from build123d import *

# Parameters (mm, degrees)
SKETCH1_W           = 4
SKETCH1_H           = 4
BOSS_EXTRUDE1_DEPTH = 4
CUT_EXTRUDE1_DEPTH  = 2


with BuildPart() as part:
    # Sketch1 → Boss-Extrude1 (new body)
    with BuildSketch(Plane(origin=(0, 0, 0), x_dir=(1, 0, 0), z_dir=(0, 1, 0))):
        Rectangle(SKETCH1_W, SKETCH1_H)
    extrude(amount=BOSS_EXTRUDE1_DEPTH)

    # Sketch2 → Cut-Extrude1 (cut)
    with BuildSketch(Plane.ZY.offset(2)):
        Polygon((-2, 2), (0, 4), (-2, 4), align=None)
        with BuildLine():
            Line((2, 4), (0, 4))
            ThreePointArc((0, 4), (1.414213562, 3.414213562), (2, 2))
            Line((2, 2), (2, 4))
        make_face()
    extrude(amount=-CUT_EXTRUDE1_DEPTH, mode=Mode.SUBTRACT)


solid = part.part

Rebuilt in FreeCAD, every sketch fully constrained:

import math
import FreeCAD as App
import Part
import Sketcher
from FreeCAD import Vector


def add_polygon(sketch, points):
    """Adds a closed chain of lines whose ends are joined by coincident constraints."""
    first, n = sketch.GeometryCount, len(points)
    for a, b in zip(points, points[1:] + points[:1]):
        sketch.addGeometry(Part.LineSegment(App.Vector(*a, 0), App.Vector(*b, 0)), False)
    for i in range(n):
        sketch.addConstraint(Sketcher.Constraint("Coincident", first + i, 2, first + (i + 1) % n, 1))

doc = App.newDocument("Part")
params = doc.addObject("Spreadsheet::Sheet", "Params")
for row, (alias, value) in enumerate([
    ("sketch1_width", "4 mm"),
    ("pad1_length", "4 mm"),
    ("sketch2_radius", "2 mm"),
    ("pocket1_length", "2 mm"),
], start=1):
    params.set(f"A{row}", alias)
    params.set(f"B{row}", "=" + value)
    params.setAlias(f"B{row}", alias)

body = doc.addObject("PartDesign::Body", "Body")

sketch1 = body.newObject("Sketcher::SketchObject", "Sketch")
sketch1.AttachmentSupport = (doc.getObject("XZ_Plane"), [""])
sketch1.MapMode = "FlatFace"
add_polygon(sketch1, [(-2, -2), (-2, 2), (2, 2), (2, -2)])
sketch1.addConstraint([
    Sketcher.Constraint("Vertical", 0),
    Sketcher.Constraint("Horizontal", 1),
    Sketcher.Constraint("Vertical", 2),
    Sketcher.Constraint("Horizontal", 3),
    Sketcher.Constraint("Symmetric", 0, 2, 2, 2, -1, 1),
    Sketcher.Constraint("Equal", 3, 0),
    Sketcher.Constraint("DistanceX", 1, 1, 1, 2, 4.0),
])
sketch1.setExpression("Constraints[10]", "Params.sketch1_width")
pad1 = body.newObject("PartDesign::Pad", "Pad")
pad1.Profile = sketch1
pad1.setExpression("Length", "Params.pad1_length")
pad1.Reversed = True

sketch2 = body.newObject("Sketcher::SketchObject", "Sketch001")
sketch2.AttachmentSupport = (doc.getObject("YZ_Plane"), [""])
sketch2.MapMode = "FlatFace"
sketch2.AttachmentOffset = App.Placement(Vector(0, 0, -2), App.Rotation())
add_polygon(sketch2, [(2, -2), (4, 0), (4, -2)])
sketch2.addGeometry(Part.LineSegment(Vector(4, 2, 0), Vector(4, 0, 0)), False)
sketch2.addGeometry(Part.ArcOfCircle(Part.Circle(Vector(2, 0, 0), Vector(0, 0, 1), 2), math.radians(0), math.radians(90)), False)
sketch2.addGeometry(Part.LineSegment(Vector(2, 2, 0), Vector(4, 2, 0)), False)
sketch2.addConstraint([
    Sketcher.Constraint("Tangent", 3, 2, 4, 1),
    Sketcher.Constraint("Tangent", 4, 2, 5, 1),
    Sketcher.Constraint("Coincident", 5, 2, 3, 1),
    Sketcher.Constraint("Vertical", 1),
    Sketcher.Constraint("Horizontal", 2),
    Sketcher.Constraint("Vertical", 3),
    Sketcher.Constraint("Horizontal", 5),
    Sketcher.Constraint("Coincident", 3, 2, 0, 2),
    Sketcher.Constraint("Symmetric", 2, 2, 4, 2, -1),
    Sketcher.Constraint("PointOnObject", 4, 3, -1),
    Sketcher.Constraint("Radius", 4, 2.0),
    Sketcher.Constraint("DistanceX", -1, 1, 4, 3, 2.0),
])
sketch2.setExpression("Constraints[13]", "Params.sketch2_radius")
pocket1 = body.newObject("PartDesign::Pocket", "Pocket")
pocket1.Profile = sketch2
pocket1.setExpression("Length", "Params.pocket1_length")
pocket1.Reversed = True

doc.recompute()
